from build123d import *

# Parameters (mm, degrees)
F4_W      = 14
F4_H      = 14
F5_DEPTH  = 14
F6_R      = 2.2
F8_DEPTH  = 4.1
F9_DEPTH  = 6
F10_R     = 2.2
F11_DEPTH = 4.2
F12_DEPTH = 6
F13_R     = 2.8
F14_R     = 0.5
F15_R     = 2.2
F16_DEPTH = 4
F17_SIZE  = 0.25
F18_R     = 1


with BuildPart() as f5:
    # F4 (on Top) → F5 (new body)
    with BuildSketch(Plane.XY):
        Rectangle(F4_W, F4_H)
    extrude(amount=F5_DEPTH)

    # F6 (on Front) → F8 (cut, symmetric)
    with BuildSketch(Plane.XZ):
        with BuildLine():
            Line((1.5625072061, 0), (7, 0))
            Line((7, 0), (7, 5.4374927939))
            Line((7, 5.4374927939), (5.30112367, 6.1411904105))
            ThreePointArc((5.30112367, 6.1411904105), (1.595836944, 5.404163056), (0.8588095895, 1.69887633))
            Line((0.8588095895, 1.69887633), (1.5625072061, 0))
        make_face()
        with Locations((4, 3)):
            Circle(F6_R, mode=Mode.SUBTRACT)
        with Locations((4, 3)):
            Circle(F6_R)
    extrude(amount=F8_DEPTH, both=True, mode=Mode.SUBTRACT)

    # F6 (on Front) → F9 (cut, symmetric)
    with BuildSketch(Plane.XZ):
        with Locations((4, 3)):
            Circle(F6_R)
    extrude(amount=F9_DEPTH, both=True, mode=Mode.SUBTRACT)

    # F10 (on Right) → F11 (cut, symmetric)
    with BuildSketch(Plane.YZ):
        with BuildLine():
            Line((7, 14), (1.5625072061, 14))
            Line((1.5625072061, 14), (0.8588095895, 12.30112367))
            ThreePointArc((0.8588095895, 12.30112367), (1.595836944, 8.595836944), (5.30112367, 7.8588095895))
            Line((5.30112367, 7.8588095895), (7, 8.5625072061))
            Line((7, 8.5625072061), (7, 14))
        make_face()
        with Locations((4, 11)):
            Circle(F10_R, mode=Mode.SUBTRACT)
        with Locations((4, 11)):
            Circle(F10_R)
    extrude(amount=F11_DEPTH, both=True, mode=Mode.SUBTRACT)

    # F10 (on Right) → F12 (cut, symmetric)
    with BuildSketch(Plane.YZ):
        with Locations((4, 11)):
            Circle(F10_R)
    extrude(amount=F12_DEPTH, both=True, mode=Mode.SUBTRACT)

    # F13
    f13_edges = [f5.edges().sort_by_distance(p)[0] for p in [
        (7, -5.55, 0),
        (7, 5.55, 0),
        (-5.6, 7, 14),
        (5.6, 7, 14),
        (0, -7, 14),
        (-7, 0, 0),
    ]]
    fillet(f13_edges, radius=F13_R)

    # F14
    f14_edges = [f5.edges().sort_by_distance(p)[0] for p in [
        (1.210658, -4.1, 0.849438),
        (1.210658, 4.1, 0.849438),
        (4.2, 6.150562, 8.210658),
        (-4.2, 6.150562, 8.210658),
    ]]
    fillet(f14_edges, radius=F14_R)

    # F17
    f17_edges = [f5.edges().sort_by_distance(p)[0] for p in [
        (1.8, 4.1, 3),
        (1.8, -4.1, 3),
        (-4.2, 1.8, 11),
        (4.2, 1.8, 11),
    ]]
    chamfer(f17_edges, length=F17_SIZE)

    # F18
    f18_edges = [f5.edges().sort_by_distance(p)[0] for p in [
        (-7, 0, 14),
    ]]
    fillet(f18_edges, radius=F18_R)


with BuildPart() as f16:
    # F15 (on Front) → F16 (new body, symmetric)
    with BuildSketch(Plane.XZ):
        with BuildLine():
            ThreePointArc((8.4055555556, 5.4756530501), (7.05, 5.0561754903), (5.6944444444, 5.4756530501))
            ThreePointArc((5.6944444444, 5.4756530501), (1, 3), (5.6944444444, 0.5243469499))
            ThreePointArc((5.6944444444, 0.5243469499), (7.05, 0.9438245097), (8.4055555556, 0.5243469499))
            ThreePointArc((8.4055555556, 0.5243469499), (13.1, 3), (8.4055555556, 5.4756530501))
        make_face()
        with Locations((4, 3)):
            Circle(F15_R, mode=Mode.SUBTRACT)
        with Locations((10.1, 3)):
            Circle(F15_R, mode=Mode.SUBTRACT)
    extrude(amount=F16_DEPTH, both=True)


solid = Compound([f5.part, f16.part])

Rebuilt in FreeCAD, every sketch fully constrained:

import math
import FreeCAD as App
import Part
import Sketcher
from FreeCAD import Vector
Q = App.Units.Quantity


def edges_at(feature, points):
    """Names of the edges that pass closest to the given points."""
    edges = feature.Shape.Edges
    near = lambda p: min(range(len(edges)), key=lambda i: edges[i].distToShape(Part.Vertex(*p))[0])
    return sorted({f"Edge{near(p) + 1}" for p in points})


def add_polygon(sketch, points):
    """Adds a closed chain of lines whose ends are joined by coincident constraints."""
    first, n = sketch.GeometryCount, len(points)
    for a, b in zip(points, points[1:] + points[:1]):
        sketch.addGeometry(Part.LineSegment(App.Vector(*a, 0), App.Vector(*b, 0)), False)
    for i in range(n):
        sketch.addConstraint(Sketcher.Constraint("Coincident", first + i, 2, first + (i + 1) % n, 1))

doc = App.newDocument("Part")
body = doc.addObject("PartDesign::Body", "Body")

sketch1 = doc.addObject("Sketcher::SketchObject", "Sketch")
body.addObject(sketch1)
sketch1.AttachmentSupport = (doc.XY_Plane, [""])
sketch1.MapMode = "FlatFace"
add_polygon(sketch1, [(-7, 7), (-7, -7), (7, -7), (7, 7)])
sketch1.addConstraint([
    Sketcher.Constraint("Vertical", 0),
    Sketcher.Constraint("Horizontal", 1),
    Sketcher.Constraint("Vertical", 2),
    Sketcher.Constraint("Horizontal", 3),
    Sketcher.Constraint("Symmetric", 0, 2, 2, 2, -1, 1),
    Sketcher.Constraint("Equal", 3, 0),
    Sketcher.Constraint("DistanceX", 1, 1, 1, 2, 14.0),
])
pad1 = doc.addObject("PartDesign::Pad", "Pad")
body.addObject(pad1)
pad1.Profile = sketch1
pad1.Length = 14

sketch2 = doc.addObject("Sketcher::SketchObject", "Sketch001")
body.addObject(sketch2)
sketch2.AttachmentSupport = (doc.XZ_Plane, [""])
sketch2.MapMode = "FlatFace"
sketch2.addGeometry([
    Part.LineSegment(Vector(1.562507, 0, 0), Vector(7, 0, 0)),
    Part.LineSegment(Vector(7, 0, 0), Vector(7, 5.437493, 0)),
    Part.LineSegment(Vector(7, 5.437493, 0), Vector(5.301124, 6.14119, 0)),
    Part.ArcOfCircle(Part.Circle(Vector(4, 3, 0), Vector(0, 0, 1), 3.4), math.radians(67.5), math.radians(202.5)),
    Part.LineSegment(Vector(0.85881, 1.698876, 0), Vector(1.562507, 0, 0)),
], False)
sketch2.addConstraint([
    Sketcher.Constraint("Coincident", 0, 2, 1, 1),
    Sketcher.Constraint("Coincident", 1, 2, 2, 1),
    Sketcher.Constraint("Tangent", 2, 2, 3, 1),
    Sketcher.Constraint("Tangent", 3, 2, 4, 1),
    Sketcher.Constraint("Coincident", 4, 2, 0, 1),
    Sketcher.Constraint("Horizontal", 0),
    Sketcher.Constraint("Vertical", 1),
    Sketcher.Constraint("PointOnObject", 0, 2, -1),
    Sketcher.Constraint("Equal", 0, 1),
    Sketcher.Constraint("Equal", 2, 4),
    Sketcher.Constraint("Radius", 3, 3.4),
    Sketcher.Constraint("DistanceX", -1, 1, 3, 3, 4.0),
    Sketcher.Constraint("DistanceY", -1, 1, 3, 3, 3.0),
    Sketcher.Constraint("Angle", 2, Q("157.5 deg")),
])
pocket1 = doc.addObject("PartDesign::Pocket", "Pocket")
body.addObject(pocket1)
pocket1.Profile = sketch2
pocket1.Length = 8.2
pocket1.Midplane = True

sketch3 = doc.addObject("Sketcher::SketchObject", "Sketch002")
body.addObject(sketch3)
sketch3.AttachmentSupport = (doc.XZ_Plane, [""])
sketch3.MapMode = "FlatFace"
sketch3.addGeometry(Part.Circle(Vector(4, 3, 0), Vector(0, 0, 1), 2.2), False)
sketch3.addConstraint([
    Sketcher.Constraint("Diameter", 0, 4.4),
    Sketcher.Constraint("DistanceX", -1, 1, 0, 3, 4.0),
    Sketcher.Constraint("DistanceY", -1, 1, 0, 3, 3.0),
])
pocket2 = doc.addObject("PartDesign::Pocket", "Pocket001")
body.addObject(pocket2)
pocket2.Profile = sketch3
pocket2.Length = 12
pocket2.Midplane = True

sketch4 = doc.addObject("Sketcher::SketchObject", "Sketch003")
body.addObject(sketch4)
sketch4.AttachmentSupport = (doc.YZ_Plane, [""])
sketch4.MapMode = "FlatFace"
sketch4.addGeometry([
    Part.LineSegment(Vector(7, 14, 0), Vector(1.562507, 14, 0)),
    Part.LineSegment(Vector(1.562507, 14, 0), Vector(0.85881, 12.301124, 0)),
    Part.ArcOfCircle(Part.Circle(Vector(4, 11, 0), Vector(0, 0, 1), 3.4), math.radians(157.5), math.radians(292.5)),
    Part.LineSegment(Vector(5.301124, 7.85881, 0), Vector(7, 8.562507, 0)),
    Part.LineSegment(Vector(7, 8.562507, 0), Vector(7, 14, 0)),
], False)
sketch4.addConstraint([
    Sketcher.Constraint("Coincident", 0, 2, 1, 1),
    Sketcher.Constraint("Tangent", 1, 2, 2, 1),
    Sketcher.Constraint("Tangent", 2, 2, 3, 1),
    Sketcher.Constraint("Coincident", 3, 2, 4, 1),
    Sketcher.Constraint("Coincident", 4, 2, 0, 1),
    Sketcher.Constraint("Horizontal", 0),
    Sketcher.Constraint("Vertical", 4),
    Sketcher.Constraint("Equal", 0, 4),
    Sketcher.Constraint("Equal", 1, 3),
    Sketcher.Constraint("Radius", 2, 3.4),
    Sketcher.Constraint("DistanceX", -1, 1, 2, 3, 4.0),
    Sketcher.Constraint("DistanceY", -1, 1, 2, 3, 11.0),
    Sketcher.Constraint("DistanceY", -1, 1, 0, 2, 14.0),
    Sketcher.Constraint("Angle", 1, Q("-112.5 deg")),
])
pocket3 = doc.addObject("PartDesign::Pocket", "Pocket002")
body.addObject(pocket3)
pocket3.Profile = sketch4
pocket3.Length = 8.4
pocket3.Midplane = True

sketch5 = doc.addObject("Sketcher::SketchObject", "Sketch004")
body.addObject(sketch5)
sketch5.AttachmentSupport = (doc.YZ_Plane, [""])
sketch5.MapMode = "FlatFace"
sketch5.addGeometry(Part.Circle(Vector(4, 11, 0), Vector(0, 0, 1), 2.2), False)
sketch5.addConstraint([
    Sketcher.Constraint("Diameter", 0, 4.4),
    Sketcher.Constraint("DistanceX", -1, 1, 0, 3, 4.0),
    Sketcher.Constraint("DistanceY", -1, 1, 0, 3, 11.0),
])
pocket4 = doc.addObject("PartDesign::Pocket", "Pocket003")
body.addObject(pocket4)
pocket4.Profile = sketch5
pocket4.Length = 12
pocket4.Midplane = True
doc.recompute()

fillet = doc.addObject("PartDesign::Fillet", "Fillet")
body.addObject(fillet)
fillet.Base = (pocket4, edges_at(pocket4, [
    (7, -5.55, 0),
    (7, 5.55, 0),
    (-5.6, 7, 14),
    (5.6, 7, 14),
    (0, -7, 14),
    (-7, 0, 0),
]))
fillet.Radius = 2.8
doc.recompute()

fillet2 = doc.addObject("PartDesign::Fillet", "Fillet001")
body.addObject(fillet2)
fillet2.Base = (fillet, edges_at(fillet, [
    (1.211, -4.1, 0.849),
    (1.211, 4.1, 0.849),
    (4.2, 6.151, 8.211),
    (-4.2, 6.151, 8.211),
]))
fillet2.Radius = 0.5
doc.recompute()

chamfer = doc.addObject("PartDesign::Chamfer", "Chamfer")
body.addObject(chamfer)
chamfer.Base = (fillet2, edges_at(fillet2, [
    (1.8, 4.1, 3),
    (1.8, -4.1, 3),
    (-4.2, 1.8, 11),
    (4.2, 1.8, 11),
]))
chamfer.Size = 0.25
doc.recompute()

fillet3 = doc.addObject("PartDesign::Fillet", "Fillet002")
body.addObject(fillet3)
fillet3.Base = (chamfer, edges_at(chamfer, [(-7, 0, 14)]))
fillet3.Radius = 1
body2 = doc.addObject("PartDesign::Body", "Body001")

sketch6 = doc.addObject("Sketcher::SketchObject", "Sketch005")
body2.addObject(sketch6)
sketch6.AttachmentSupport = (doc.getObject("XZ_Plane001"), [""])
sketch6.MapMode = "FlatFace"
sketch6.addGeometry([
    Part.ArcOfCircle(Part.Circle(Vector(7.05, 7.456175, 0), Vector(0, 0, 1), 2.4), math.radians(-124.389433), math.radians(-55.610567)),
    Part.ArcOfCircle(Part.Circle(Vector(4, 3, 0), Vector(0, 0, 1), 3), math.radians(55.610567), math.radians(304.389433)),
    Part.ArcOfCircle(Part.Circle(Vector(7.05, -1.456175, 0), Vector(0, 0, 1), 2.4), math.radians(55.610567), math.radians(124.389433)),
    Part.ArcOfCircle(Part.Circle(Vector(10.1, 3, 0), Vector(0, 0, 1), 3), math.radians(-124.389433), math.radians(124.389433)),
    Part.Circle(Vector(4, 3, 0), Vector(0, 0, 1), 2.2),
    Part.Circle(Vector(10.1, 3, 0), Vector(0, 0, 1), 2.2),
], False)
sketch6.addConstraint([
    Sketcher.Constraint("Tangent", 0, 1, 1, 1),
    Sketcher.Constraint("Tangent", 1, 2, 2, 2),
    Sketcher.Constraint("Tangent", 2, 1, 3, 1),
    Sketcher.Constraint("Tangent", 3, 2, 0, 2),
    Sketcher.Constraint("Coincident", 4, 3, 1, 3),
    Sketcher.Constraint("Coincident", 5, 3, 3, 3),
    Sketcher.Constraint("Equal", 0, 2),
    Sketcher.Constraint("Equal", 1, 3),
    Sketcher.Constraint("Equal", 4, 5),
    Sketcher.Constraint("Horizontal", 1, 3, 3, 3),
    Sketcher.Constraint("Radius", 1, 3.0),
    Sketcher.Constraint("Diameter", 4, 4.4),
    Sketcher.Constraint("Radius", 0, 2.4),
    Sketcher.Constraint("DistanceX", -1, 1, 1, 3, 4.0),
    Sketcher.Constraint("DistanceY", -1, 1, 1, 3, 3.0),
    Sketcher.Constraint("DistanceX", -1, 1, 3, 3, 10.1),
])
pad2 = doc.addObject("PartDesign::Pad", "Pad001")
body2.addObject(pad2)
pad2.Profile = sketch6
pad2.Length = 8
pad2.Midplane = True

doc.recompute()
